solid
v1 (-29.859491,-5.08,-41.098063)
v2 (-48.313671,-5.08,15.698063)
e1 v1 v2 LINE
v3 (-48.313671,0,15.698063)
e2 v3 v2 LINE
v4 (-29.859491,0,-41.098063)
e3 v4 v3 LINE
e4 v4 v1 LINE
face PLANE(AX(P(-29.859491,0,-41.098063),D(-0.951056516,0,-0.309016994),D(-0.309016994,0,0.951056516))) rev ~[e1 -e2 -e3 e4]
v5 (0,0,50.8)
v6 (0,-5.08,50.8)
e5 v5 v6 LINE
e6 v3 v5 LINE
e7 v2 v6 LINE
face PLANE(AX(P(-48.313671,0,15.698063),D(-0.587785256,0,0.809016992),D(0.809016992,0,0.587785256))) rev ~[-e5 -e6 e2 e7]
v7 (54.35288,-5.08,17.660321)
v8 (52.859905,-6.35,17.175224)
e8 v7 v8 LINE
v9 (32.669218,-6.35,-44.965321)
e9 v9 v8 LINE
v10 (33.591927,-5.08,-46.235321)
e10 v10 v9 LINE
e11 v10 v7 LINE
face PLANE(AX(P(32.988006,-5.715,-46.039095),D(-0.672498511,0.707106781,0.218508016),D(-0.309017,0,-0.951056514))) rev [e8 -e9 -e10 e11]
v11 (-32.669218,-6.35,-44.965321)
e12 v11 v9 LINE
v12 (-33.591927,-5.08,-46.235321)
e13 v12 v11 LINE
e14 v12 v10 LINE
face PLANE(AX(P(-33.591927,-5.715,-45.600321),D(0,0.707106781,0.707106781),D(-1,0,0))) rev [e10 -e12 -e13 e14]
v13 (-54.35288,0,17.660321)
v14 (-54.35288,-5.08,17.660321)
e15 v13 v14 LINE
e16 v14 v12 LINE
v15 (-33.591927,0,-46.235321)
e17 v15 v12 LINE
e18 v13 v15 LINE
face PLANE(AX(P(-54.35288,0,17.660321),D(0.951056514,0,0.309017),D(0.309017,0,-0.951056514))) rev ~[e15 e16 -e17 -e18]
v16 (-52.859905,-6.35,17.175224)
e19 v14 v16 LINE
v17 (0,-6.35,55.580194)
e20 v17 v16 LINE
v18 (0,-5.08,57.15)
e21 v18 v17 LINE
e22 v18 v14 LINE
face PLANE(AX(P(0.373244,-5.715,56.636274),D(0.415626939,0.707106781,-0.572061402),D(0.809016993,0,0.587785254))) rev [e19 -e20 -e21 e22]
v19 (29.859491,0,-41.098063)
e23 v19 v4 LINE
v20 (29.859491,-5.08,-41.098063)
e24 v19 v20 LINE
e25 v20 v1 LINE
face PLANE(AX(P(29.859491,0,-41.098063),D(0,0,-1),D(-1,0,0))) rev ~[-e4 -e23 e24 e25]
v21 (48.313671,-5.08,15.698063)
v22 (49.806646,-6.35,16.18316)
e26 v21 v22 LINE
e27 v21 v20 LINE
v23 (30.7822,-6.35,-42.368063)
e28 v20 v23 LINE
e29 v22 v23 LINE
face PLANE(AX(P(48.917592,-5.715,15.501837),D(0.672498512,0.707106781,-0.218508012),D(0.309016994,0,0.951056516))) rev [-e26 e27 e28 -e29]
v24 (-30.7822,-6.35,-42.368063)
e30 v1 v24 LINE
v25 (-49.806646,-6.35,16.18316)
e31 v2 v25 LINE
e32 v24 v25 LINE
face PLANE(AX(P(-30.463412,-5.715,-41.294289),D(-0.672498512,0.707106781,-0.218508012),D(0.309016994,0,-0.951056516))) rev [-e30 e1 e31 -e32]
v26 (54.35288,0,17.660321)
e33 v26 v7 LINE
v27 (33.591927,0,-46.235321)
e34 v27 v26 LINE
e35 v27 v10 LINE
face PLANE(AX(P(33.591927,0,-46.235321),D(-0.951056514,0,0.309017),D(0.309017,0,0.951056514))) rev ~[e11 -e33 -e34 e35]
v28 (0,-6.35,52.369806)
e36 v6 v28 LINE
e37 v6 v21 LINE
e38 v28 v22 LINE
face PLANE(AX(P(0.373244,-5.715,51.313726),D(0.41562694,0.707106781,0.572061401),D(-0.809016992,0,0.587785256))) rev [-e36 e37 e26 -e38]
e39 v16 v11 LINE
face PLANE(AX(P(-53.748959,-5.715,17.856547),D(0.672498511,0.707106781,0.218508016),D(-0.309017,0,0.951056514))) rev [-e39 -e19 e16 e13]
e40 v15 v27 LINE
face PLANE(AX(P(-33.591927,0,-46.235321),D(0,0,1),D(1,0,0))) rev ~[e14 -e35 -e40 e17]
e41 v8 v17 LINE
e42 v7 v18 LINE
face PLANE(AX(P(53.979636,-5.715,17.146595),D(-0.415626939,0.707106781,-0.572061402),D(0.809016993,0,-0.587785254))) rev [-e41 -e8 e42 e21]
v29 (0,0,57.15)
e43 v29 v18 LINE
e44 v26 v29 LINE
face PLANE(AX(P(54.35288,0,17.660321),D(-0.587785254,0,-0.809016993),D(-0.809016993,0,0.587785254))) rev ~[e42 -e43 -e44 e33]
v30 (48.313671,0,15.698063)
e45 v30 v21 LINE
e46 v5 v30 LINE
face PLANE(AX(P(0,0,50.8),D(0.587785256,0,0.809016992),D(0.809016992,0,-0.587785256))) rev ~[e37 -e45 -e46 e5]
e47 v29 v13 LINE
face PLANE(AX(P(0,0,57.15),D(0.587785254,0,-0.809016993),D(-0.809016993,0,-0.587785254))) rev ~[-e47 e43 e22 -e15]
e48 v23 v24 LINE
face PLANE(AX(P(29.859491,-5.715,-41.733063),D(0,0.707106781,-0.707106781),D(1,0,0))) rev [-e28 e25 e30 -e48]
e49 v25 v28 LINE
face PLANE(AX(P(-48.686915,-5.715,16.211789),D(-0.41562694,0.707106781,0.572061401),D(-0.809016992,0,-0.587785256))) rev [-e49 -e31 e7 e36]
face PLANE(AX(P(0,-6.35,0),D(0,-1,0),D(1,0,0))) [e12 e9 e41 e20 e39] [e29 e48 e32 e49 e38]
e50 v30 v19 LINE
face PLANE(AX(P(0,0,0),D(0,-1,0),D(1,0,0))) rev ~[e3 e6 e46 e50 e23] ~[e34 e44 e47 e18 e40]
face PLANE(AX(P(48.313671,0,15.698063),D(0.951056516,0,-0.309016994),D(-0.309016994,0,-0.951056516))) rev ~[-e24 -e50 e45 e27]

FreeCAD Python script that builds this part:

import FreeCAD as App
import Part
import Sketcher

V = App.Vector
Q = App.Units.Quantity


def edges_at(feature, points):
    """Names of the edges that pass closest to the given points."""
    edges = feature.Shape.Edges
    near = lambda p: min(range(len(edges)), key=lambda i: edges[i].distToShape(Part.Vertex(*p))[0])
    return sorted({f"Edge{near(p) + 1}" for p in points})

doc = App.newDocument("Part")
body = doc.addObject("PartDesign::Body", "Body")

# Sketch on XZ plane
sketch1 = body.newObject("Sketcher::SketchObject", "Sketch")
sketch1.AttachmentSupport = (doc.getObject("XZ_Plane"), [""])
sketch1.MapMode = "FlatFace"
sketch1.addGeometry(Part.LineSegment(V(54.35288, 17.660321, 0), V(0, 57.15, 0)), False)
sketch1.addGeometry(Part.LineSegment(V(0, 57.15, 0), V(-54.35288, 17.660321, 0)), False)
sketch1.addGeometry(Part.LineSegment(V(-54.35288, 17.660321, 0), V(-33.591927, -46.235321, 0)), False)
sketch1.addGeometry(Part.LineSegment(V(-33.591927, -46.235321, 0), V(33.591927, -46.235321, 0)), False)
sketch1.addGeometry(Part.LineSegment(V(33.591927, -46.235321, 0), V(54.35288, 17.660321, 0)), False)
sketch1.addGeometry(Part.LineSegment(V(-29.859491, -41.098063, 0), V(-48.313671, 15.698063, 0)), False)
sketch1.addGeometry(Part.LineSegment(V(-48.313671, 15.698063, 0), V(0, 50.8, 0)), False)
sketch1.addGeometry(Part.LineSegment(V(0, 50.8, 0), V(48.313671, 15.698063, 0)), False)
sketch1.addGeometry(Part.LineSegment(V(48.313671, 15.698063, 0), V(29.859491, -41.098063, 0)), False)
sketch1.addGeometry(Part.LineSegment(V(29.859491, -41.098063, 0), V(-29.859491, -41.098063, 0)), False)
sketch1.addConstraint(Sketcher.Constraint("Coincident", 0, 2, 1, 1))
sketch1.addConstraint(Sketcher.Constraint("Coincident", 1, 2, 2, 1))
sketch1.addConstraint(Sketcher.Constraint("Coincident", 2, 2, 3, 1))
sketch1.addConstraint(Sketcher.Constraint("Coincident", 3, 2, 4, 1))
sketch1.addConstraint(Sketcher.Constraint("Coincident", 4, 2, 0, 1))
sketch1.addConstraint(Sketcher.Constraint("Coincident", 5, 2, 6, 1))
sketch1.addConstraint(Sketcher.Constraint("Coincident", 6, 2, 7, 1))
sketch1.addConstraint(Sketcher.Constraint("Coincident", 7, 2, 8, 1))
sketch1.addConstraint(Sketcher.Constraint("Coincident", 8, 2, 9, 1))
sketch1.addConstraint(Sketcher.Constraint("Coincident", 9, 2, 5, 1))
sketch1.addConstraint(Sketcher.Constraint("Horizontal", 3))
sketch1.addConstraint(Sketcher.Constraint("Horizontal", 9))
sketch1.addConstraint(Sketcher.Constraint("Symmetric", 1, 2, 4, 2, -2))
sketch1.addConstraint(Sketcher.Constraint("Symmetric", 5, 2, 7, 2, -2))
sketch1.addConstraint(Sketcher.Constraint("PointOnObject", 0, 2, -2))
sketch1.addConstraint(Sketcher.Constraint("PointOnObject", 6, 2, -2))
sketch1.addConstraint(Sketcher.Constraint("Parallel", 2, 5))
sketch1.addConstraint(Sketcher.Constraint("Parallel", 1, 6))
sketch1.addConstraint(Sketcher.Constraint("Parallel", 4, 8))
sketch1.addConstraint(Sketcher.Constraint("Equal", 1, 2))
sketch1.addConstraint(Sketcher.Constraint("Equal", 2, 4))
sketch1.addConstraint(Sketcher.Constraint("Equal", 5, 6))
sketch1.addConstraint(Sketcher.Constraint("DistanceY", -1, 1, 6, 2, Q("2 in")))
sketch1.addConstraint(Sketcher.Constraint("Angle", 0, Q("144 deg")))
sketch1.addConstraint(Sketcher.Constraint("Angle", 2, Q("-72 deg")))
sketch1.addConstraint(Sketcher.Constraint("DistanceY", -1, 1, 0, 2, Q("2.25 in")))
sketch1.addConstraint(Sketcher.Constraint("DistanceX", 9, 2, 9, 1, Q("59.718982 mm")))
sketch1.addConstraint(Sketcher.Constraint("DistanceX", 3, 1, 3, 2, Q("67.183854 mm")))
pad1 = body.newObject("PartDesign::Pad", "Pad")
pad1.Profile = sketch1
pad1.Length = Q("0.25 in")
doc.recompute()

chamfer = body.newObject("PartDesign::Chamfer", "Chamfer")
chamfer.Base = (pad1, edges_at(pad1, [
    (43.972, -6.35, -14.287),
    (27.176, -6.35, 37.405),
    (-27.176, -6.35, 37.405),
    (-43.972, -6.35, -14.287),
    (0, -6.35, -46.235),
    (-24.157, -6.35, 33.249),
    (24.157, -6.35, 33.249),
    (39.087, -6.35, -12.7),
    (0, -6.35, -41.098),
    (-39.087, -6.35, -12.7),
]))
chamfer.ChamferType = "Two distances"
chamfer.Size = Q("0.05 in")
chamfer.Size2 = Q("0.05 in")

doc.recompute()
